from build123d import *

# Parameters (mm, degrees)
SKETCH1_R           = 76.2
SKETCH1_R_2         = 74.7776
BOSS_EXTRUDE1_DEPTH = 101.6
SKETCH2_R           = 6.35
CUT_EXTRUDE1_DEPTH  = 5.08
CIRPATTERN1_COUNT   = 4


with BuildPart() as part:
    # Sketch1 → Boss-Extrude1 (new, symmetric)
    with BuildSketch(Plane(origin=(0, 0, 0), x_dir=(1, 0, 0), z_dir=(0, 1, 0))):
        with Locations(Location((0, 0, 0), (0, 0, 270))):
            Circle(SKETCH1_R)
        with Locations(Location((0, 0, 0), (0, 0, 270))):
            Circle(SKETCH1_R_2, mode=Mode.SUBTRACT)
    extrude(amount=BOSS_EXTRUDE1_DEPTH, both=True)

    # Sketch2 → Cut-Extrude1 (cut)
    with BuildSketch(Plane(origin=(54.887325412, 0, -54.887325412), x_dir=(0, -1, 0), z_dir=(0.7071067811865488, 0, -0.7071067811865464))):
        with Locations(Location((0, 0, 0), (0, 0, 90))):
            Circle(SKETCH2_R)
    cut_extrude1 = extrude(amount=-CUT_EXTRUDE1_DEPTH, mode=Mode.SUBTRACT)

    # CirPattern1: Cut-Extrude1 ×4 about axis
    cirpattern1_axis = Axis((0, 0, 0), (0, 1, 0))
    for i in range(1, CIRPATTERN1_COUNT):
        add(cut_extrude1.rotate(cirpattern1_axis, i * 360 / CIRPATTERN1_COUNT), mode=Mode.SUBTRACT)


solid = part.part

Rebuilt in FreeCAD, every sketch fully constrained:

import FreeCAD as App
import Part
import Sketcher

V = App.Vector
Q = App.Units.Quantity

doc = App.newDocument("Part")
body = doc.addObject("PartDesign::Body", "Body")

# Sketch on XZ plane
sketch1 = doc.addObject("Sketcher::SketchObject", "Sketch")
body.addObject(sketch1)
sketch1.AttachmentSupport = (doc.XZ_Plane, [""])
sketch1.MapMode = "FlatFace"
sketch1.addGeometry(Part.Circle(V(0, 0, 0), V(0, 0, 1), 76.2), False)
sketch1.addGeometry(Part.Circle(V(0, 0, 0), V(0, 0, 1), 74.7776), False)
sketch1.addConstraint(Sketcher.Constraint("Coincident", 0, 3, -1, 1))
sketch1.addConstraint(Sketcher.Constraint("Coincident", 1, 3, -1, 1))
sketch1.addConstraint(Sketcher.Constraint("Diameter", 0, Q("6 in")))
sketch1.addConstraint(Sketcher.Constraint("Diameter", 1, Q("5.888 in")))
pad1 = doc.addObject("PartDesign::Pad", "Pad")
body.addObject(pad1)
pad1.Profile = sketch1
pad1.Length = Q("8 in")
pad1.Midplane = True

# Sketch on an angled plane
sketch2 = doc.addObject("Sketcher::SketchObject", "Sketch001")
body.addObject(sketch2)
sketch2.Placement = App.Placement(V(54.887325, 0, -54.887325), App.Rotation(V(0, -1, 0), V(-0.707106781, 0, -0.707106781), V(0.707106781, 0, -0.707106781), "ZXY"))
sketch2.addGeometry(Part.Circle(V(0, 0, 0), V(0, 0, 1), 6.35), False)
sketch2.addConstraint(Sketcher.Constraint("Coincident", 0, 3, -1, 1))
sketch2.addConstraint(Sketcher.Constraint("Diameter", 0, Q("0.5 in")))
pocket1 = doc.addObject("PartDesign::Pocket", "Pocket")
body.addObject(pocket1)
pocket1.Profile = sketch2
pocket1.Length = Q("0.2 in")
doc.recompute()

polarpattern = doc.addObject("PartDesign::PolarPattern", "PolarPattern")
body.addObject(polarpattern)
polarpattern.Originals = [pocket1]
polarpattern.Axis = (doc.Y_Axis, [""])
polarpattern.Angle = 360
polarpattern.Occurrences = 4
body.Tip = polarpattern

doc.recompute()
